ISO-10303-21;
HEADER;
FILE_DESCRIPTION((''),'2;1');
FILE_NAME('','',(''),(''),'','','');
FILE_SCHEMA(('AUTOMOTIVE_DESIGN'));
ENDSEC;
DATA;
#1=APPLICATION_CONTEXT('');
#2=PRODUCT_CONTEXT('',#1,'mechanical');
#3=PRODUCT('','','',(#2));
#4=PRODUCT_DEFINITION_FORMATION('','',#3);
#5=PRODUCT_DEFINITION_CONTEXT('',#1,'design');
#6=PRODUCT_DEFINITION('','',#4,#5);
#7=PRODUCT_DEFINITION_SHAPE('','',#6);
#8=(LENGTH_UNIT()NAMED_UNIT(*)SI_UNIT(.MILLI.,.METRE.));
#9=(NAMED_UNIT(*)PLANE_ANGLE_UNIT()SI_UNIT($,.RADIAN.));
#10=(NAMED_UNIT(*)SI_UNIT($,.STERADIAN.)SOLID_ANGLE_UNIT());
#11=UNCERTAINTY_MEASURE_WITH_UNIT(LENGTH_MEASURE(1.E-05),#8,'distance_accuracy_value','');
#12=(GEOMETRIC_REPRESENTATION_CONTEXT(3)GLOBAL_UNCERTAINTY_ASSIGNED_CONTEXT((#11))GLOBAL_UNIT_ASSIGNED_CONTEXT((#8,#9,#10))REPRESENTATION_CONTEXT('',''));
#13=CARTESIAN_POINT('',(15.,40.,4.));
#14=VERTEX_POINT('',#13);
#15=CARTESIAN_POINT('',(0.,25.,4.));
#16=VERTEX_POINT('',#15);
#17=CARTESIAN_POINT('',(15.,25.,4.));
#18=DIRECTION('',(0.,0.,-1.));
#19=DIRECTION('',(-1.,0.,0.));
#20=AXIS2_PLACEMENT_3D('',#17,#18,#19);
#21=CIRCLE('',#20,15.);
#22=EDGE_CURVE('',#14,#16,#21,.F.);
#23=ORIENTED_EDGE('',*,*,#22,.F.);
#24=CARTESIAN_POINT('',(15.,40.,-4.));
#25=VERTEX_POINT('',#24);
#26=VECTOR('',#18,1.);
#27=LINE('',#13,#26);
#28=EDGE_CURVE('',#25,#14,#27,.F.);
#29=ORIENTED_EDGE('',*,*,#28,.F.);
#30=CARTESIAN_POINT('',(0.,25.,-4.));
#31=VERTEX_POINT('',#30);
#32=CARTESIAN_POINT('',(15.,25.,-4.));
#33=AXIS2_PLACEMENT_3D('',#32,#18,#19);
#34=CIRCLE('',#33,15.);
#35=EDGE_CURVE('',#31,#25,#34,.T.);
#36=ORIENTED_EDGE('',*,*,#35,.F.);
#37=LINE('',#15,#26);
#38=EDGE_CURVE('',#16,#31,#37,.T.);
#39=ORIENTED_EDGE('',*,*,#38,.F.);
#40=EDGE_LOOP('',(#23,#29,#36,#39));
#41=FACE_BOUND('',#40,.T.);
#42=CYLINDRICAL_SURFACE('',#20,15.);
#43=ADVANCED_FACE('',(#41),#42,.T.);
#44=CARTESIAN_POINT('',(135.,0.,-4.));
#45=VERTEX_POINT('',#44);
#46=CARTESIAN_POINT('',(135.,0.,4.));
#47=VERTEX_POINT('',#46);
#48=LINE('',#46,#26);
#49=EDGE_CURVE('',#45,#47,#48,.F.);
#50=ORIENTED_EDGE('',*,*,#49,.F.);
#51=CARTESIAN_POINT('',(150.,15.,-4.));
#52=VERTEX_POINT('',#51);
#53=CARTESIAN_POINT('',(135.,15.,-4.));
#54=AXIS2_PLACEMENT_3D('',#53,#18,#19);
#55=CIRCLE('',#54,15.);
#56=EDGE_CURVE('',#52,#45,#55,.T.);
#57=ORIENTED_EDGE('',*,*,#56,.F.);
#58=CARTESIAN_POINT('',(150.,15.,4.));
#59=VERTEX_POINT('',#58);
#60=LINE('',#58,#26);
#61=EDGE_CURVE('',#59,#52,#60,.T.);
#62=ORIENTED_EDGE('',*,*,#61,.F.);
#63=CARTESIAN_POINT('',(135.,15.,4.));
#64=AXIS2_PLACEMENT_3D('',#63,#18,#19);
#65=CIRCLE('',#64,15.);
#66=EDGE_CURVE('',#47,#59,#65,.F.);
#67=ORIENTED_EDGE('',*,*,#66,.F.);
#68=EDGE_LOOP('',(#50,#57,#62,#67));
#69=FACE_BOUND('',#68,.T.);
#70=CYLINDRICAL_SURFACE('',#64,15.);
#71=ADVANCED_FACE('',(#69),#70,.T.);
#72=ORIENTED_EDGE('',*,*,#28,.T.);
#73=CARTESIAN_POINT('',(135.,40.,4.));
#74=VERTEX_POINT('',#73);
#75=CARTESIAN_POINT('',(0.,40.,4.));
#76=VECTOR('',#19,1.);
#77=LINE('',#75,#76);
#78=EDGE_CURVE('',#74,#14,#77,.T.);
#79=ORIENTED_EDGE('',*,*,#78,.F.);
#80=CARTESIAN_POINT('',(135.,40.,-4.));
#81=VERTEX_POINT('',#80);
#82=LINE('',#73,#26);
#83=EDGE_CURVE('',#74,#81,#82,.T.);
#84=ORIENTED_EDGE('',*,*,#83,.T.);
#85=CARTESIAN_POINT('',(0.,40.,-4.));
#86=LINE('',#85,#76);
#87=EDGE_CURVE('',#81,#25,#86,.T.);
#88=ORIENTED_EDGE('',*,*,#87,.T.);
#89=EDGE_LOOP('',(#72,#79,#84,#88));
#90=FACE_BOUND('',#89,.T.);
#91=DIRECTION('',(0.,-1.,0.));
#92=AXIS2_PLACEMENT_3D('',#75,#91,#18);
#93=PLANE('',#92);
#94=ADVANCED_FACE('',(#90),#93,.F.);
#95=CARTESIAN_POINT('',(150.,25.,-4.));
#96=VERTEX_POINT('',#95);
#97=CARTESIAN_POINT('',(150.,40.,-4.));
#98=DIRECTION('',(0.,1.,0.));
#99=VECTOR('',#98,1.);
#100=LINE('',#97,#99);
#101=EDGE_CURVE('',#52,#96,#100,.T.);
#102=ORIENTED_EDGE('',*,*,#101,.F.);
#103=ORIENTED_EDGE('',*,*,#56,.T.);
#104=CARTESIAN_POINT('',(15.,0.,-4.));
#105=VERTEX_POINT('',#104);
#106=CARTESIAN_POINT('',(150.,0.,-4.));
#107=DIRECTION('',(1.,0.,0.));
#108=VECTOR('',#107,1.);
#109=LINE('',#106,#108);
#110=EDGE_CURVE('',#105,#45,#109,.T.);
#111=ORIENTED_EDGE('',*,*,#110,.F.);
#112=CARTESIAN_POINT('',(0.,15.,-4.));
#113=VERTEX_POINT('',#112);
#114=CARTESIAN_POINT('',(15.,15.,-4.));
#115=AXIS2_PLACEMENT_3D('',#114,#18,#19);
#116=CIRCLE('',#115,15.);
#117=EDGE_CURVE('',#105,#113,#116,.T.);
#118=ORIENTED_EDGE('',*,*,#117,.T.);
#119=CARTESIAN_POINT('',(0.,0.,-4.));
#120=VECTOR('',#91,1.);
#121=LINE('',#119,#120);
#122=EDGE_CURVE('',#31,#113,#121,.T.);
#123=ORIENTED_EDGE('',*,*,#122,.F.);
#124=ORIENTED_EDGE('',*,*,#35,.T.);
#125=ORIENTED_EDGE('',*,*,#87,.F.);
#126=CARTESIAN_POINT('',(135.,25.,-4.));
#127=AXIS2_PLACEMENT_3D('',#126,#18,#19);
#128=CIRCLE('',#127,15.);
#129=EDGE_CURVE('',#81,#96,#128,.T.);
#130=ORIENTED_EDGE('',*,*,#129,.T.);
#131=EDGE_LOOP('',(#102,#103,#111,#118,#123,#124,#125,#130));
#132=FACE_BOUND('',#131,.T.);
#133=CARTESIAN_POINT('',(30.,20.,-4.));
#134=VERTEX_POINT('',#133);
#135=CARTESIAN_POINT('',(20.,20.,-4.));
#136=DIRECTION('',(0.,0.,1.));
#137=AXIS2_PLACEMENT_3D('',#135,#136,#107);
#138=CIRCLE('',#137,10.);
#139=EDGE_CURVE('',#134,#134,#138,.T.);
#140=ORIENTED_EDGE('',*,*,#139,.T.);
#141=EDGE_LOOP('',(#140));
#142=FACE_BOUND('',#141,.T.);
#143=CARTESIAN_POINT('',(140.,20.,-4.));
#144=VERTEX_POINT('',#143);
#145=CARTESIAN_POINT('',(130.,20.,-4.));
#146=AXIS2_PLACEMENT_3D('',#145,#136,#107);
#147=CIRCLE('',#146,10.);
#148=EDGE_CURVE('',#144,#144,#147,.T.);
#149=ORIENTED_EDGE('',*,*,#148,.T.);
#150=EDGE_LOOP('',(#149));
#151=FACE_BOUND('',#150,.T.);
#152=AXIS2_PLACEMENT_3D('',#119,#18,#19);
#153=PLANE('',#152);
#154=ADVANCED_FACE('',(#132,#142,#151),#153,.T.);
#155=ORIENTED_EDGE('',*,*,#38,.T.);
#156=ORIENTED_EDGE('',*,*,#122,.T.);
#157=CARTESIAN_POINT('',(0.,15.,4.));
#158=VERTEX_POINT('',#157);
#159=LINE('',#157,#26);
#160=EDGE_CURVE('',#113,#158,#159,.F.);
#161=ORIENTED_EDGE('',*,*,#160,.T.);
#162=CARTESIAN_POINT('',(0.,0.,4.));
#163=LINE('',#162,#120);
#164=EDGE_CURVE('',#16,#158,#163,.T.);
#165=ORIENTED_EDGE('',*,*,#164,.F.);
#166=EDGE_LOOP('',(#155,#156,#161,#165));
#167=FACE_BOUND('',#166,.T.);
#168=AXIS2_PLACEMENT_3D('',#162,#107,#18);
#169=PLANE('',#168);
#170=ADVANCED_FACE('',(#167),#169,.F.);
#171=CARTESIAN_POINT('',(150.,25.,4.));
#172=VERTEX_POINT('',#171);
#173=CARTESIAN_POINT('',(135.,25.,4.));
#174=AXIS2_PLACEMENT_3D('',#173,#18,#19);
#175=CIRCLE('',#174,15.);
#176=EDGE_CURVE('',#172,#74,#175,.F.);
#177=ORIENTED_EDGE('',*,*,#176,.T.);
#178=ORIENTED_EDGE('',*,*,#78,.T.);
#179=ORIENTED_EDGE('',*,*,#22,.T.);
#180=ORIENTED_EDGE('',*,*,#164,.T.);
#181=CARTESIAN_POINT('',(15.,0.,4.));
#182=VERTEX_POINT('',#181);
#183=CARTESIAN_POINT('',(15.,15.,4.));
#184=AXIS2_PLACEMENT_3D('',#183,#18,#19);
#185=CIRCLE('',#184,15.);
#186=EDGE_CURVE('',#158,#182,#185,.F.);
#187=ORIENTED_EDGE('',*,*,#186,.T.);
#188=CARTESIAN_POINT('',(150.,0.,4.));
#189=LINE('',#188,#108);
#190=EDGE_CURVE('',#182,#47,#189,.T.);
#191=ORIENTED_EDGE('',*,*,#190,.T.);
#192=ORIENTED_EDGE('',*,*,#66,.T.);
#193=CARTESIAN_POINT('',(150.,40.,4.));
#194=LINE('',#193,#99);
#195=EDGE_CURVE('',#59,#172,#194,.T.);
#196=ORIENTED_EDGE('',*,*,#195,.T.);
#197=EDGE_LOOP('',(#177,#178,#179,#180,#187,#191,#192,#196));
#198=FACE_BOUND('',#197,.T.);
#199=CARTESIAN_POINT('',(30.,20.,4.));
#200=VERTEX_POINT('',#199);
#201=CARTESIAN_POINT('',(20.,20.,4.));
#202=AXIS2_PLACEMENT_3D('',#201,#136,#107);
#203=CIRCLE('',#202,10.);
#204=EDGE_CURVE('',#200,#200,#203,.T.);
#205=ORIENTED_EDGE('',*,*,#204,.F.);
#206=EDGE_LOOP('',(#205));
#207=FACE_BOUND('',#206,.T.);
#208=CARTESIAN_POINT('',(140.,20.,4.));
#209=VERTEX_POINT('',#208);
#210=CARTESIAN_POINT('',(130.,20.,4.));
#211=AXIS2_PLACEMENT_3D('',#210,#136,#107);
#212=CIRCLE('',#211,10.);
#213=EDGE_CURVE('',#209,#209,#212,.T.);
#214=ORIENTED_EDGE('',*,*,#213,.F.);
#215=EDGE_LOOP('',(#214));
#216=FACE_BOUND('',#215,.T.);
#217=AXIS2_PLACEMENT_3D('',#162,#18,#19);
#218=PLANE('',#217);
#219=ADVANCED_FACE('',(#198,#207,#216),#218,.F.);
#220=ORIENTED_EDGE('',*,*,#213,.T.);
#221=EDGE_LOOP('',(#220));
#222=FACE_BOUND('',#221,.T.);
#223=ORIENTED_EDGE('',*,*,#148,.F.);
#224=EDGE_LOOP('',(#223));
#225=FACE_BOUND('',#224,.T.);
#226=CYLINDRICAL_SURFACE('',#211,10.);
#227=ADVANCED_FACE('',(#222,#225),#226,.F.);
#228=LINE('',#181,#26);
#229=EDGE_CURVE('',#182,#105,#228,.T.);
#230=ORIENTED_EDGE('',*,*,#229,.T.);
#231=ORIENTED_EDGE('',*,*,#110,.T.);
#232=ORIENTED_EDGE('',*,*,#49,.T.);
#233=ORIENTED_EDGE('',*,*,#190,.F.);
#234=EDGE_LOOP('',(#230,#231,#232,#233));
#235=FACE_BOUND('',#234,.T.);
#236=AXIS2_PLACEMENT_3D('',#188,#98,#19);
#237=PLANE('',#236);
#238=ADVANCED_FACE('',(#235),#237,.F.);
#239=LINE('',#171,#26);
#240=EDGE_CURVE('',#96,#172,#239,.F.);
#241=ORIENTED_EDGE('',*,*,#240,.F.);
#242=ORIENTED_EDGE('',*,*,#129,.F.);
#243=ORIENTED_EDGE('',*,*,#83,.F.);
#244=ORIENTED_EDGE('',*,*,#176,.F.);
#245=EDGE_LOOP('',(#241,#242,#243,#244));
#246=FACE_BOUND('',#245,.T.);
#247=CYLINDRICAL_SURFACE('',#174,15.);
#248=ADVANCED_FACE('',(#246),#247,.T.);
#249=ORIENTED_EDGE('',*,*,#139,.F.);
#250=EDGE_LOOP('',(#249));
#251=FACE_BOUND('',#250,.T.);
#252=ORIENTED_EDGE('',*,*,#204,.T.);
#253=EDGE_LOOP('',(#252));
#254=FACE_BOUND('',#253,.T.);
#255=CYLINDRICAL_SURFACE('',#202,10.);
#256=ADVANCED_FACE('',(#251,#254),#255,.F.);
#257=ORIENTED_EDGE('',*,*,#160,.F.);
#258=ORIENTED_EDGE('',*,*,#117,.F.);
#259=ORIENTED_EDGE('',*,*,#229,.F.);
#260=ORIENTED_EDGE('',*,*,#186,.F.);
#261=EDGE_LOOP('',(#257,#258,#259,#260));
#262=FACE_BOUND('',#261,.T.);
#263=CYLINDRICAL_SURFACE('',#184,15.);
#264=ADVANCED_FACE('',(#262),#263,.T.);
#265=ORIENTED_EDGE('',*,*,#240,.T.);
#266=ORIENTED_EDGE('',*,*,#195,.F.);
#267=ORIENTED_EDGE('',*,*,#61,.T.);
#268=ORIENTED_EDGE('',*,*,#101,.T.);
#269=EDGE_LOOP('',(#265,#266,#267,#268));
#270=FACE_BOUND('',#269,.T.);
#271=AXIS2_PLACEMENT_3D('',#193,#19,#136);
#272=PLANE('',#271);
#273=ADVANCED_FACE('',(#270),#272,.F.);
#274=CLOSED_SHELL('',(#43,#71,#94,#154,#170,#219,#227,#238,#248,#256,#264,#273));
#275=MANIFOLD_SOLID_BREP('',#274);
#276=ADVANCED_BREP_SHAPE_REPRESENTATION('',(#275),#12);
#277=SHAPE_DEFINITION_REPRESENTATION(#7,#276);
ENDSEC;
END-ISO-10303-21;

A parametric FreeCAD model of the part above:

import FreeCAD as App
import Part
import Sketcher
Q = App.Units.Quantity


def edges_at(feature, points):
    """Names of the edges that pass closest to the given points."""
    edges = feature.Shape.Edges
    near = lambda p: min(range(len(edges)), key=lambda i: edges[i].distToShape(Part.Vertex(*p))[0])
    return sorted({f"Edge{near(p) + 1}" for p in points})

doc = App.newDocument("Part")
params = doc.addObject("Spreadsheet::Sheet", "Params")
for row, (alias, value) in enumerate([
    ("sketch1_width", "150 mm"),
    ("sketch1_height", "40 mm"),
    ("pad1_length", "8 mm"),
    ("fillet_radius", "15 mm"),
    ("sketch2_diameter", "20 mm"),
    ("hole_diameter", "20 mm"),
], start=1):
    params.set(f"A{row}", alias)
    params.set(f"B{row}", "=" + value)
    params.setAlias(f"B{row}", alias)

body = doc.addObject("PartDesign::Body", "Body")

sketch1 = doc.addObject("Sketcher::SketchObject", "Sketch")
body.addObject(sketch1)
sketch1.AttachmentSupport = (doc.XY_Plane, [""])
sketch1.MapMode = "FlatFace"
sketch1.addGeometry(Part.LineSegment(App.Vector(0, 40, 0), App.Vector(0, 0, 0)), False)
sketch1.addGeometry(Part.LineSegment(App.Vector(0, 0, 0), App.Vector(150, 0, 0)), False)
sketch1.addGeometry(Part.LineSegment(App.Vector(150, 0, 0), App.Vector(150, 40, 0)), False)
sketch1.addGeometry(Part.LineSegment(App.Vector(150, 40, 0), App.Vector(0, 40, 0)), False)
sketch1.addConstraint(Sketcher.Constraint("Coincident", 0, 2, 1, 1))
sketch1.addConstraint(Sketcher.Constraint("Coincident", 1, 2, 2, 1))
sketch1.addConstraint(Sketcher.Constraint("Coincident", 2, 2, 3, 1))
sketch1.addConstraint(Sketcher.Constraint("Coincident", 3, 2, 0, 1))
sketch1.addConstraint(Sketcher.Constraint("Vertical", 0))
sketch1.addConstraint(Sketcher.Constraint("Horizontal", 1))
sketch1.addConstraint(Sketcher.Constraint("Vertical", 2))
sketch1.addConstraint(Sketcher.Constraint("Horizontal", 3))
sketch1.addConstraint(Sketcher.Constraint("Coincident", 0, 2, -1, 1))
sketch1.addConstraint(Sketcher.Constraint("DistanceX", 1, 1, 1, 2, Q("150 mm")))
sketch1.addConstraint(Sketcher.Constraint("DistanceY", 0, 2, 0, 1, Q("40 mm")))
sketch1.setExpression("Constraints[9]", "Params.sketch1_width")
sketch1.setExpression("Constraints[10]", "Params.sketch1_height")
pad1 = doc.addObject("PartDesign::Pad", "Pad")
body.addObject(pad1)
pad1.Profile = sketch1
pad1.setExpression("Length", "Params.pad1_length")
pad1.Midplane = True
doc.recompute()

fillet = doc.addObject("PartDesign::Fillet", "Fillet")
body.addObject(fillet)
fillet.Base = (pad1, edges_at(pad1, [
    (0, 0, 0),
    (0, 40, 0),
    (150, 40, 0),
    (150, 0, 0),
]))
fillet.setExpression("Radius", "Params.fillet_radius")

sketch2 = doc.addObject("Sketcher::SketchObject", "Sketch001")
body.addObject(sketch2)
sketch2.AttachmentSupport = (doc.XY_Plane, [""])
sketch2.MapMode = "FlatFace"
sketch2.AttachmentOffset = App.Placement(App.Vector(0, 0, 4), App.Rotation())
sketch2.addGeometry(Part.Circle(App.Vector(20, 20, 0), App.Vector(0, 0, 1), 10), False)
sketch2.addGeometry(Part.Circle(App.Vector(130, 20, 0), App.Vector(0, 0, 1), 10), False)
sketch2.addConstraint(Sketcher.Constraint("Equal", 0, 1))
sketch2.addConstraint(Sketcher.Constraint("Horizontal", 0, 3, 1, 3))
sketch2.addConstraint(Sketcher.Constraint("Diameter", 0, Q("20 mm")))
sketch2.addConstraint(Sketcher.Constraint("DistanceX", -1, 1, 0, 3, Q("20 mm")))
sketch2.addConstraint(Sketcher.Constraint("DistanceY", -1, 1, 0, 3, Q("20 mm")))
sketch2.addConstraint(Sketcher.Constraint("DistanceX", -1, 1, 1, 3, Q("130 mm")))
sketch2.setExpression("Constraints[2]", "Params.sketch2_diameter")
doc.recompute()
hole = doc.addObject("PartDesign::Hole", "Hole")
body.addObject(hole)
hole.Profile = sketch2
hole.ThreadType = "None"
hole.setExpression("Diameter", "Params.hole_diameter")
hole.DepthType = "ThroughAll"

doc.recompute()
